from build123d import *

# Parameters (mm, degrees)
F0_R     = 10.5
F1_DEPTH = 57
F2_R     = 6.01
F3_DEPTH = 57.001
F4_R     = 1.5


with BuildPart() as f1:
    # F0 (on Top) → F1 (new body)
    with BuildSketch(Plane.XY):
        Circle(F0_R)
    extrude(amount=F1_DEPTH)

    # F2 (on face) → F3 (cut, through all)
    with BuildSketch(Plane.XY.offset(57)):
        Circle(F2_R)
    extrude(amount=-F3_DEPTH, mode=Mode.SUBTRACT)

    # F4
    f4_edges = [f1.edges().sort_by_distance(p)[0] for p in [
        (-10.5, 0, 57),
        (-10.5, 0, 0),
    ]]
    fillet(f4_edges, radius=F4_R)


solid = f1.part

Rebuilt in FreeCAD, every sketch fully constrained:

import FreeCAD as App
import Part
import Sketcher


def edges_at(feature, points):
    """Names of the edges that pass closest to the given points."""
    edges = feature.Shape.Edges
    near = lambda p: min(range(len(edges)), key=lambda i: edges[i].distToShape(Part.Vertex(*p))[0])
    return sorted({f"Edge{near(p) + 1}" for p in points})

doc = App.newDocument("Part")
params = doc.addObject("Spreadsheet::Sheet", "Params")
for row, (alias, value) in enumerate([
    ("sketch1_diameter", "21 mm"),
    ("pad1_length", "57 mm"),
    ("sketch2_diameter", "12.02 mm"),
    ("fillet_radius", "1.5 mm"),
], start=1):
    params.set(f"A{row}", alias)
    params.set(f"B{row}", "=" + value)
    params.setAlias(f"B{row}", alias)

body = doc.addObject("PartDesign::Body", "Body")

sketch1 = body.newObject("Sketcher::SketchObject", "Sketch")
sketch1.AttachmentSupport = (doc.getObject("XY_Plane"), [""])
sketch1.MapMode = "FlatFace"
sketch1.addGeometry(Part.Circle(App.Vector(0, 0, 0), App.Vector(0, 0, 1), 10), False)
sketch1.addConstraint(Sketcher.Constraint("Coincident", 0, 3, -1, 1))
sketch1.addConstraint(Sketcher.Constraint("Diameter", 0, 21.0))
sketch1.setExpression("Constraints[1]", "Params.sketch1_diameter")
pad1 = body.newObject("PartDesign::Pad", "Pad")
pad1.Profile = sketch1
pad1.setExpression("Length", "Params.pad1_length")

sketch2 = body.newObject("Sketcher::SketchObject", "Sketch001")
sketch2.AttachmentSupport = (doc.getObject("XY_Plane"), [""])
sketch2.MapMode = "FlatFace"
sketch2.AttachmentOffset = App.Placement(App.Vector(0, 0, 57), App.Rotation())
sketch2.addGeometry(Part.Circle(App.Vector(0, 0, 0), App.Vector(0, 0, 1), 6), False)
sketch2.addConstraint(Sketcher.Constraint("Coincident", 0, 3, -1, 1))
sketch2.addConstraint(Sketcher.Constraint("Diameter", 0, 12.02))
sketch2.setExpression("Constraints[1]", "Params.sketch2_diameter")
pocket1 = body.newObject("PartDesign::Pocket", "Pocket")
pocket1.Profile = sketch2
pocket1.Type = "ThroughAll"
doc.recompute()

fillet = body.newObject("PartDesign::Fillet", "Fillet")
fillet.Base = (pocket1, edges_at(pocket1, [(-10.5, 0, 57), (-10.5, 0, 0)]))
fillet.setExpression("Radius", "Params.fillet_radius")

doc.recompute()
